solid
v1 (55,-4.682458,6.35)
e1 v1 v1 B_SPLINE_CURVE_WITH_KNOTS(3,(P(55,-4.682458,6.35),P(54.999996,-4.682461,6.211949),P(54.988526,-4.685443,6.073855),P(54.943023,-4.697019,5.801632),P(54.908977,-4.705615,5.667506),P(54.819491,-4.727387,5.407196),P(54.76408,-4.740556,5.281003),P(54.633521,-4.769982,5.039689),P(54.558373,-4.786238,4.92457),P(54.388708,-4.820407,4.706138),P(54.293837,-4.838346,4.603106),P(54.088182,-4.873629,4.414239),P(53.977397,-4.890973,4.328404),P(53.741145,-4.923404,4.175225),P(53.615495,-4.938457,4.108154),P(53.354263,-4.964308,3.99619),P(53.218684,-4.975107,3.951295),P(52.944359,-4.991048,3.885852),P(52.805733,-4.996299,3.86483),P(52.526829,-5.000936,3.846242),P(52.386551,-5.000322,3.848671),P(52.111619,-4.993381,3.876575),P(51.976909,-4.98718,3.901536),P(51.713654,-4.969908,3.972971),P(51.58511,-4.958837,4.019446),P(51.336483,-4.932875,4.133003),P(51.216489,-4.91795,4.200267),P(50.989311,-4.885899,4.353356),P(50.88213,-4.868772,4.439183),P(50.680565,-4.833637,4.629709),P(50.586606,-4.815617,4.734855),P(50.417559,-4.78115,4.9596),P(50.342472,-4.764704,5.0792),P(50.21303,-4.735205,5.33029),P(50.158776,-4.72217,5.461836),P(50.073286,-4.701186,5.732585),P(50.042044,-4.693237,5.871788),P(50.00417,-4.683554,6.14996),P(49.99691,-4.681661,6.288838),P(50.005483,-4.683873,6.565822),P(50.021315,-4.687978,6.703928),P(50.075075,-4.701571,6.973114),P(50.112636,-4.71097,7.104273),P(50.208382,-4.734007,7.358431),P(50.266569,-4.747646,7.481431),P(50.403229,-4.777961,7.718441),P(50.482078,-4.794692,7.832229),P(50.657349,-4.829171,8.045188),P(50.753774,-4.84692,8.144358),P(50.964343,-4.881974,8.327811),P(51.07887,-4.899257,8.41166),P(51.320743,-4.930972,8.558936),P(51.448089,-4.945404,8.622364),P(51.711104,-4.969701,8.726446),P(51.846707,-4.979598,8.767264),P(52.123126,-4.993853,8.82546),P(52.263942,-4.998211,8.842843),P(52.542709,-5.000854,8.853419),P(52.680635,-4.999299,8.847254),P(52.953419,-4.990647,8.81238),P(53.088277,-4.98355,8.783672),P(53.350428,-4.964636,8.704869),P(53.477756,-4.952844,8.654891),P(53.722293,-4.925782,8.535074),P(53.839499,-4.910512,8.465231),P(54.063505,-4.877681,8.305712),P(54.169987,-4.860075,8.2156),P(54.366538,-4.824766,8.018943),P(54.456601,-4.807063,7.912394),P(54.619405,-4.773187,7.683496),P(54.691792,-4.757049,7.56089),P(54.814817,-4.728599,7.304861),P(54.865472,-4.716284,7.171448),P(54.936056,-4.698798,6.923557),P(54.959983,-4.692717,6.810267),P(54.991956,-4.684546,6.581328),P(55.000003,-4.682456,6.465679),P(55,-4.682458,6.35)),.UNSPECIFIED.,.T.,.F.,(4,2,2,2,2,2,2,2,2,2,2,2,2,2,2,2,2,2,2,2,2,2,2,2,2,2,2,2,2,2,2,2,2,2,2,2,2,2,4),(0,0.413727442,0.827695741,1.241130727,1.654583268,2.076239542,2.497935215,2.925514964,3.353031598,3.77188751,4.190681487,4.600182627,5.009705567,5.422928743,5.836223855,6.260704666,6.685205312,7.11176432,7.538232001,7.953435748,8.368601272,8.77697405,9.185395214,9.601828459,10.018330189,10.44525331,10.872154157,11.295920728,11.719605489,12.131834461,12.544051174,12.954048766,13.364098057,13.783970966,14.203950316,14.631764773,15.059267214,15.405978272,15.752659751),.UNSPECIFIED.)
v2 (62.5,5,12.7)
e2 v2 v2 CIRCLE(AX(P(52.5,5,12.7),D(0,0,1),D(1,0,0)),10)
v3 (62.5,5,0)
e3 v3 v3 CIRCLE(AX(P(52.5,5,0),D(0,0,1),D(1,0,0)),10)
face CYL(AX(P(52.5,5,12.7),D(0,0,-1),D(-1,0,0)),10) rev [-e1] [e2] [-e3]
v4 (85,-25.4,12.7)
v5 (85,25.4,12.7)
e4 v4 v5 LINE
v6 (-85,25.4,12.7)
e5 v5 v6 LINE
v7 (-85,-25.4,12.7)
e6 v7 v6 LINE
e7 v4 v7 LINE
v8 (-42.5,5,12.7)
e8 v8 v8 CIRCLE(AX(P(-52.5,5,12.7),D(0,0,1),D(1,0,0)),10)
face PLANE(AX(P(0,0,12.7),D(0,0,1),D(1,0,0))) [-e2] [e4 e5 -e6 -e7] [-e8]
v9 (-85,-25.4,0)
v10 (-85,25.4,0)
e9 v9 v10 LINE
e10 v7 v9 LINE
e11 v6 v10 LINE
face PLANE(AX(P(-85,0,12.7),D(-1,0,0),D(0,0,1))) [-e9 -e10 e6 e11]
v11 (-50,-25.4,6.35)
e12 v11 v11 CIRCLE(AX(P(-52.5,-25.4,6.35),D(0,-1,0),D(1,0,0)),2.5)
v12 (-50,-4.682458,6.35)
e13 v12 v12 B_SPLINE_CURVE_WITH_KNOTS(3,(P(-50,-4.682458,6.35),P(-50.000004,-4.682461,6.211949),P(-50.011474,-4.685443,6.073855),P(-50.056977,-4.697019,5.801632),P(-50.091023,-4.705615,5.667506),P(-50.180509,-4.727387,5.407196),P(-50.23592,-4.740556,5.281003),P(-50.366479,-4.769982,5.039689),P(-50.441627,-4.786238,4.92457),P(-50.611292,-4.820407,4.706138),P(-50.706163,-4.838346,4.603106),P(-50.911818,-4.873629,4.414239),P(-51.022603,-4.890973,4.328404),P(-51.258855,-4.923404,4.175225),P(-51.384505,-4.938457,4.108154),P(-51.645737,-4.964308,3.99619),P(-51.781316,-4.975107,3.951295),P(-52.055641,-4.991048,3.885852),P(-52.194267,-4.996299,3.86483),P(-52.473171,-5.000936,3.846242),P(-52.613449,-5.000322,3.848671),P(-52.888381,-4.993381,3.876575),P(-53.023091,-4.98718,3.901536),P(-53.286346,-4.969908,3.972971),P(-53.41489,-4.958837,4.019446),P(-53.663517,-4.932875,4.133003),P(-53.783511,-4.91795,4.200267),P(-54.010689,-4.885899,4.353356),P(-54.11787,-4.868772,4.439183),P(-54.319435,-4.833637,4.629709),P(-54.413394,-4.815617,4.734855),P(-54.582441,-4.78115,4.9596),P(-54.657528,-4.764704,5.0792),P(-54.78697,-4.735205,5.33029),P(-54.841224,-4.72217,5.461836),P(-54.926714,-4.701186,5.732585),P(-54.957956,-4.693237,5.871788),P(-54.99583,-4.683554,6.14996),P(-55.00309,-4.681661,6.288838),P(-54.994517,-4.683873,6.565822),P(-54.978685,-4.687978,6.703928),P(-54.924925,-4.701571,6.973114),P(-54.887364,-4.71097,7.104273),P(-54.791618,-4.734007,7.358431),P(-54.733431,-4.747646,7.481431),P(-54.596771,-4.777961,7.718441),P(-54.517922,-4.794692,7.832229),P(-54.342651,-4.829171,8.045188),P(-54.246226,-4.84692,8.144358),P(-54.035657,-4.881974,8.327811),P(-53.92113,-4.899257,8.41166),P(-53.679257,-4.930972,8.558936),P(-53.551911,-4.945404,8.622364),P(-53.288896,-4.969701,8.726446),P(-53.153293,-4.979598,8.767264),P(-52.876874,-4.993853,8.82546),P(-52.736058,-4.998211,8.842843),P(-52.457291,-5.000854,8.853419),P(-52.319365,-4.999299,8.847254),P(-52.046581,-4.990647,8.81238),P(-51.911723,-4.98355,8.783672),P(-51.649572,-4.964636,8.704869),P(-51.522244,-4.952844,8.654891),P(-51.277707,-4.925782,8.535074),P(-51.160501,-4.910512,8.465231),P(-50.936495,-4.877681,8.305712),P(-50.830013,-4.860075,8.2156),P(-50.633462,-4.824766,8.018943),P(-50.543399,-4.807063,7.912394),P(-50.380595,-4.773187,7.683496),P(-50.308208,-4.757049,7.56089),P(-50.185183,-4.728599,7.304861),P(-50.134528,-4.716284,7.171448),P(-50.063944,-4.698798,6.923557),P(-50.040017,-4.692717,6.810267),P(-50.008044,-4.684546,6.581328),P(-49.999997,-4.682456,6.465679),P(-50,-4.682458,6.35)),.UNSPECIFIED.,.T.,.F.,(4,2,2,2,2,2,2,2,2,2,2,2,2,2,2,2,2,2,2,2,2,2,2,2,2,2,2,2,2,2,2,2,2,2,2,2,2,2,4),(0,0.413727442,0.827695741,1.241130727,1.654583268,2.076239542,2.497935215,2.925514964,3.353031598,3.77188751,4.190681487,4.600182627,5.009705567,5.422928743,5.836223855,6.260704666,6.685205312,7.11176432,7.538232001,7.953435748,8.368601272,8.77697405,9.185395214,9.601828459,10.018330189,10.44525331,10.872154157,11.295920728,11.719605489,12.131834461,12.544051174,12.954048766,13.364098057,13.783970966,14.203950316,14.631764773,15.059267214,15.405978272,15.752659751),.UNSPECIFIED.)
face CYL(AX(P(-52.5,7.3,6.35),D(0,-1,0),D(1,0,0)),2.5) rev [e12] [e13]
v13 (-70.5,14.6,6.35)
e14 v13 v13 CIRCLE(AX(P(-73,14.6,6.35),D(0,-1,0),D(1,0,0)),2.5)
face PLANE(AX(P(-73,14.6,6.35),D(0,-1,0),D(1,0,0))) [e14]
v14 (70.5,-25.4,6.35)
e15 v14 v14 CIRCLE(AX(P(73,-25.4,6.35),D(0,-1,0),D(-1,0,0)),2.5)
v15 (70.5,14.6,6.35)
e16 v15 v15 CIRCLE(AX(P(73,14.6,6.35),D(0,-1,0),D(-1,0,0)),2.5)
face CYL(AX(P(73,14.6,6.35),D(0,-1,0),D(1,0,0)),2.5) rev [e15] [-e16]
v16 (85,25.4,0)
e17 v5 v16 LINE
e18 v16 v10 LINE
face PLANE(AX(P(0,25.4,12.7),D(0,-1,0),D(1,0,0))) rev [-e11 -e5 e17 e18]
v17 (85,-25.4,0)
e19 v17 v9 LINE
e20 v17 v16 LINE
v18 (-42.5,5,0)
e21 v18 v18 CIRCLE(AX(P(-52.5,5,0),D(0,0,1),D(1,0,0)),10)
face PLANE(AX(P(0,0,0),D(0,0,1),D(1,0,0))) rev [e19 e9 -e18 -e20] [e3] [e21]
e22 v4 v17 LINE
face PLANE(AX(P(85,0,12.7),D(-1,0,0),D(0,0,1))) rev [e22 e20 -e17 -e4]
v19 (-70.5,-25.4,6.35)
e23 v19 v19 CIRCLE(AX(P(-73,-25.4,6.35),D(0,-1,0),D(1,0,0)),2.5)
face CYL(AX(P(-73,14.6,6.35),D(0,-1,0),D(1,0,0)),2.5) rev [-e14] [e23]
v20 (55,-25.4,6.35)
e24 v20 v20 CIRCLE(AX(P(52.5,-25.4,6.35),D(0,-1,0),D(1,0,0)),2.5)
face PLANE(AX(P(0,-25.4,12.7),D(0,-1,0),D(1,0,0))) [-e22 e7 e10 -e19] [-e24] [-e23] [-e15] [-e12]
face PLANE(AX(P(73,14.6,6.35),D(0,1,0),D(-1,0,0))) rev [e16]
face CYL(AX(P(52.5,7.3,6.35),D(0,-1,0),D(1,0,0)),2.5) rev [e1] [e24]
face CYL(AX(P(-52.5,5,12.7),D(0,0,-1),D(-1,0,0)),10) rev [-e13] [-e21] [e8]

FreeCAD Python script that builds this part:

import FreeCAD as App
import Part
import Sketcher

V = App.Vector
Q = App.Units.Quantity

doc = App.newDocument("Part")
body = doc.addObject("PartDesign::Body", "Body")

sketch1 = body.newObject("Sketcher::SketchObject", "Sketch")
sketch1.AttachmentSupport = (doc.getObject("XY_Plane"), [""])
sketch1.MapMode = "FlatFace"
sketch1.addGeometry([
    Part.LineSegment(V(-85, 25, 0), V(-85, -25, 0)),
    Part.LineSegment(V(-85, -25, 0), V(85, -25, 0)),
    Part.LineSegment(V(85, -25, 0), V(85, 25, 0)),
    Part.LineSegment(V(85, 25, 0), V(-85, 25, 0)),
    Part.Circle(V(-52, 5, 0), V(0, 0, 1), 10),
    Part.Circle(V(52, 5, 0), V(0, 0, 1), 10),
], False)
sketch1.addConstraint([
    Sketcher.Constraint("Coincident", 0, 2, 1, 1),
    Sketcher.Constraint("Coincident", 1, 2, 2, 1),
    Sketcher.Constraint("Coincident", 2, 2, 3, 1),
    Sketcher.Constraint("Coincident", 3, 2, 0, 1),
    Sketcher.Constraint("Vertical", 0),
    Sketcher.Constraint("Horizontal", 1),
    Sketcher.Constraint("Vertical", 2),
    Sketcher.Constraint("Horizontal", 3),
    Sketcher.Constraint("Equal", 4, 5),
    Sketcher.Constraint("Symmetric", 0, 2, 2, 2, -1, 1),
    Sketcher.Constraint("Symmetric", 4, 3, 5, 3, -2),
    Sketcher.Constraint("Diameter", 4, Q("20 mm")),
    Sketcher.Constraint("DistanceX", 1, 1, 1, 2, Q("170 mm")),
    Sketcher.Constraint("DistanceY", 0, 2, 0, 1, Q("50.8 mm")),
    Sketcher.Constraint("DistanceY", -1, 1, 4, 3, Q("5 mm")),
    Sketcher.Constraint("DistanceX", 4, 3, 5, 3, Q("105 mm")),
])
pad1 = body.newObject("PartDesign::Pad", "Pad")
pad1.Profile = sketch1
pad1.Length = 12.7

sketch2 = body.newObject("Sketcher::SketchObject", "Sketch001")
sketch2.AttachmentSupport = (doc.getObject("XZ_Plane"), [""])
sketch2.MapMode = "FlatFace"
sketch2.AttachmentOffset = App.Placement(V(0, 0, 25.4), App.Rotation())
sketch2.addGeometry([
    Part.Circle(V(-52.5, 6.3, 0), V(0, 0, 1), 2.5),
    Part.Circle(V(52.5, 6.3, 0), V(0, 0, 1), 2.5),
], False)
sketch2.addConstraint([
    Sketcher.Constraint("Equal", 0, 1),
    Sketcher.Constraint("Symmetric", 0, 3, 1, 3, -2),
    Sketcher.Constraint("Diameter", 0, Q("5 mm")),
    Sketcher.Constraint("DistanceX", 0, 3, 1, 3, Q("105 mm")),
    Sketcher.Constraint("DistanceY", -1, 1, 0, 3, Q("6.35 mm")),
])
pocket1 = body.newObject("PartDesign::Pocket", "Pocket")
pocket1.Profile = sketch2
pocket1.Length = 32.7

sketch3 = body.newObject("Sketcher::SketchObject", "Sketch002")
sketch3.AttachmentSupport = (doc.getObject("XZ_Plane"), [""])
sketch3.MapMode = "FlatFace"
sketch3.AttachmentOffset = App.Placement(V(0, 0, 25.4), App.Rotation())
sketch3.addGeometry([
    Part.Circle(V(-73, 6.3, 0), V(0, 0, 1), 2.5),
    Part.Circle(V(73, 6.3, 0), V(0, 0, 1), 2.5),
], False)
sketch3.addConstraint([
    Sketcher.Constraint("Equal", 0, 1),
    Sketcher.Constraint("Symmetric", 0, 3, 1, 3, -2),
    Sketcher.Constraint("Diameter", 0, Q("5 mm")),
    Sketcher.Constraint("DistanceX", 0, 3, -1, 1, Q("73 mm")),
    Sketcher.Constraint("DistanceY", -1, 1, 0, 3, Q("6.35 mm")),
])
pocket2 = body.newObject("PartDesign::Pocket", "Pocket001")
pocket2.Profile = sketch3
pocket2.Length = 40

doc.recompute()
